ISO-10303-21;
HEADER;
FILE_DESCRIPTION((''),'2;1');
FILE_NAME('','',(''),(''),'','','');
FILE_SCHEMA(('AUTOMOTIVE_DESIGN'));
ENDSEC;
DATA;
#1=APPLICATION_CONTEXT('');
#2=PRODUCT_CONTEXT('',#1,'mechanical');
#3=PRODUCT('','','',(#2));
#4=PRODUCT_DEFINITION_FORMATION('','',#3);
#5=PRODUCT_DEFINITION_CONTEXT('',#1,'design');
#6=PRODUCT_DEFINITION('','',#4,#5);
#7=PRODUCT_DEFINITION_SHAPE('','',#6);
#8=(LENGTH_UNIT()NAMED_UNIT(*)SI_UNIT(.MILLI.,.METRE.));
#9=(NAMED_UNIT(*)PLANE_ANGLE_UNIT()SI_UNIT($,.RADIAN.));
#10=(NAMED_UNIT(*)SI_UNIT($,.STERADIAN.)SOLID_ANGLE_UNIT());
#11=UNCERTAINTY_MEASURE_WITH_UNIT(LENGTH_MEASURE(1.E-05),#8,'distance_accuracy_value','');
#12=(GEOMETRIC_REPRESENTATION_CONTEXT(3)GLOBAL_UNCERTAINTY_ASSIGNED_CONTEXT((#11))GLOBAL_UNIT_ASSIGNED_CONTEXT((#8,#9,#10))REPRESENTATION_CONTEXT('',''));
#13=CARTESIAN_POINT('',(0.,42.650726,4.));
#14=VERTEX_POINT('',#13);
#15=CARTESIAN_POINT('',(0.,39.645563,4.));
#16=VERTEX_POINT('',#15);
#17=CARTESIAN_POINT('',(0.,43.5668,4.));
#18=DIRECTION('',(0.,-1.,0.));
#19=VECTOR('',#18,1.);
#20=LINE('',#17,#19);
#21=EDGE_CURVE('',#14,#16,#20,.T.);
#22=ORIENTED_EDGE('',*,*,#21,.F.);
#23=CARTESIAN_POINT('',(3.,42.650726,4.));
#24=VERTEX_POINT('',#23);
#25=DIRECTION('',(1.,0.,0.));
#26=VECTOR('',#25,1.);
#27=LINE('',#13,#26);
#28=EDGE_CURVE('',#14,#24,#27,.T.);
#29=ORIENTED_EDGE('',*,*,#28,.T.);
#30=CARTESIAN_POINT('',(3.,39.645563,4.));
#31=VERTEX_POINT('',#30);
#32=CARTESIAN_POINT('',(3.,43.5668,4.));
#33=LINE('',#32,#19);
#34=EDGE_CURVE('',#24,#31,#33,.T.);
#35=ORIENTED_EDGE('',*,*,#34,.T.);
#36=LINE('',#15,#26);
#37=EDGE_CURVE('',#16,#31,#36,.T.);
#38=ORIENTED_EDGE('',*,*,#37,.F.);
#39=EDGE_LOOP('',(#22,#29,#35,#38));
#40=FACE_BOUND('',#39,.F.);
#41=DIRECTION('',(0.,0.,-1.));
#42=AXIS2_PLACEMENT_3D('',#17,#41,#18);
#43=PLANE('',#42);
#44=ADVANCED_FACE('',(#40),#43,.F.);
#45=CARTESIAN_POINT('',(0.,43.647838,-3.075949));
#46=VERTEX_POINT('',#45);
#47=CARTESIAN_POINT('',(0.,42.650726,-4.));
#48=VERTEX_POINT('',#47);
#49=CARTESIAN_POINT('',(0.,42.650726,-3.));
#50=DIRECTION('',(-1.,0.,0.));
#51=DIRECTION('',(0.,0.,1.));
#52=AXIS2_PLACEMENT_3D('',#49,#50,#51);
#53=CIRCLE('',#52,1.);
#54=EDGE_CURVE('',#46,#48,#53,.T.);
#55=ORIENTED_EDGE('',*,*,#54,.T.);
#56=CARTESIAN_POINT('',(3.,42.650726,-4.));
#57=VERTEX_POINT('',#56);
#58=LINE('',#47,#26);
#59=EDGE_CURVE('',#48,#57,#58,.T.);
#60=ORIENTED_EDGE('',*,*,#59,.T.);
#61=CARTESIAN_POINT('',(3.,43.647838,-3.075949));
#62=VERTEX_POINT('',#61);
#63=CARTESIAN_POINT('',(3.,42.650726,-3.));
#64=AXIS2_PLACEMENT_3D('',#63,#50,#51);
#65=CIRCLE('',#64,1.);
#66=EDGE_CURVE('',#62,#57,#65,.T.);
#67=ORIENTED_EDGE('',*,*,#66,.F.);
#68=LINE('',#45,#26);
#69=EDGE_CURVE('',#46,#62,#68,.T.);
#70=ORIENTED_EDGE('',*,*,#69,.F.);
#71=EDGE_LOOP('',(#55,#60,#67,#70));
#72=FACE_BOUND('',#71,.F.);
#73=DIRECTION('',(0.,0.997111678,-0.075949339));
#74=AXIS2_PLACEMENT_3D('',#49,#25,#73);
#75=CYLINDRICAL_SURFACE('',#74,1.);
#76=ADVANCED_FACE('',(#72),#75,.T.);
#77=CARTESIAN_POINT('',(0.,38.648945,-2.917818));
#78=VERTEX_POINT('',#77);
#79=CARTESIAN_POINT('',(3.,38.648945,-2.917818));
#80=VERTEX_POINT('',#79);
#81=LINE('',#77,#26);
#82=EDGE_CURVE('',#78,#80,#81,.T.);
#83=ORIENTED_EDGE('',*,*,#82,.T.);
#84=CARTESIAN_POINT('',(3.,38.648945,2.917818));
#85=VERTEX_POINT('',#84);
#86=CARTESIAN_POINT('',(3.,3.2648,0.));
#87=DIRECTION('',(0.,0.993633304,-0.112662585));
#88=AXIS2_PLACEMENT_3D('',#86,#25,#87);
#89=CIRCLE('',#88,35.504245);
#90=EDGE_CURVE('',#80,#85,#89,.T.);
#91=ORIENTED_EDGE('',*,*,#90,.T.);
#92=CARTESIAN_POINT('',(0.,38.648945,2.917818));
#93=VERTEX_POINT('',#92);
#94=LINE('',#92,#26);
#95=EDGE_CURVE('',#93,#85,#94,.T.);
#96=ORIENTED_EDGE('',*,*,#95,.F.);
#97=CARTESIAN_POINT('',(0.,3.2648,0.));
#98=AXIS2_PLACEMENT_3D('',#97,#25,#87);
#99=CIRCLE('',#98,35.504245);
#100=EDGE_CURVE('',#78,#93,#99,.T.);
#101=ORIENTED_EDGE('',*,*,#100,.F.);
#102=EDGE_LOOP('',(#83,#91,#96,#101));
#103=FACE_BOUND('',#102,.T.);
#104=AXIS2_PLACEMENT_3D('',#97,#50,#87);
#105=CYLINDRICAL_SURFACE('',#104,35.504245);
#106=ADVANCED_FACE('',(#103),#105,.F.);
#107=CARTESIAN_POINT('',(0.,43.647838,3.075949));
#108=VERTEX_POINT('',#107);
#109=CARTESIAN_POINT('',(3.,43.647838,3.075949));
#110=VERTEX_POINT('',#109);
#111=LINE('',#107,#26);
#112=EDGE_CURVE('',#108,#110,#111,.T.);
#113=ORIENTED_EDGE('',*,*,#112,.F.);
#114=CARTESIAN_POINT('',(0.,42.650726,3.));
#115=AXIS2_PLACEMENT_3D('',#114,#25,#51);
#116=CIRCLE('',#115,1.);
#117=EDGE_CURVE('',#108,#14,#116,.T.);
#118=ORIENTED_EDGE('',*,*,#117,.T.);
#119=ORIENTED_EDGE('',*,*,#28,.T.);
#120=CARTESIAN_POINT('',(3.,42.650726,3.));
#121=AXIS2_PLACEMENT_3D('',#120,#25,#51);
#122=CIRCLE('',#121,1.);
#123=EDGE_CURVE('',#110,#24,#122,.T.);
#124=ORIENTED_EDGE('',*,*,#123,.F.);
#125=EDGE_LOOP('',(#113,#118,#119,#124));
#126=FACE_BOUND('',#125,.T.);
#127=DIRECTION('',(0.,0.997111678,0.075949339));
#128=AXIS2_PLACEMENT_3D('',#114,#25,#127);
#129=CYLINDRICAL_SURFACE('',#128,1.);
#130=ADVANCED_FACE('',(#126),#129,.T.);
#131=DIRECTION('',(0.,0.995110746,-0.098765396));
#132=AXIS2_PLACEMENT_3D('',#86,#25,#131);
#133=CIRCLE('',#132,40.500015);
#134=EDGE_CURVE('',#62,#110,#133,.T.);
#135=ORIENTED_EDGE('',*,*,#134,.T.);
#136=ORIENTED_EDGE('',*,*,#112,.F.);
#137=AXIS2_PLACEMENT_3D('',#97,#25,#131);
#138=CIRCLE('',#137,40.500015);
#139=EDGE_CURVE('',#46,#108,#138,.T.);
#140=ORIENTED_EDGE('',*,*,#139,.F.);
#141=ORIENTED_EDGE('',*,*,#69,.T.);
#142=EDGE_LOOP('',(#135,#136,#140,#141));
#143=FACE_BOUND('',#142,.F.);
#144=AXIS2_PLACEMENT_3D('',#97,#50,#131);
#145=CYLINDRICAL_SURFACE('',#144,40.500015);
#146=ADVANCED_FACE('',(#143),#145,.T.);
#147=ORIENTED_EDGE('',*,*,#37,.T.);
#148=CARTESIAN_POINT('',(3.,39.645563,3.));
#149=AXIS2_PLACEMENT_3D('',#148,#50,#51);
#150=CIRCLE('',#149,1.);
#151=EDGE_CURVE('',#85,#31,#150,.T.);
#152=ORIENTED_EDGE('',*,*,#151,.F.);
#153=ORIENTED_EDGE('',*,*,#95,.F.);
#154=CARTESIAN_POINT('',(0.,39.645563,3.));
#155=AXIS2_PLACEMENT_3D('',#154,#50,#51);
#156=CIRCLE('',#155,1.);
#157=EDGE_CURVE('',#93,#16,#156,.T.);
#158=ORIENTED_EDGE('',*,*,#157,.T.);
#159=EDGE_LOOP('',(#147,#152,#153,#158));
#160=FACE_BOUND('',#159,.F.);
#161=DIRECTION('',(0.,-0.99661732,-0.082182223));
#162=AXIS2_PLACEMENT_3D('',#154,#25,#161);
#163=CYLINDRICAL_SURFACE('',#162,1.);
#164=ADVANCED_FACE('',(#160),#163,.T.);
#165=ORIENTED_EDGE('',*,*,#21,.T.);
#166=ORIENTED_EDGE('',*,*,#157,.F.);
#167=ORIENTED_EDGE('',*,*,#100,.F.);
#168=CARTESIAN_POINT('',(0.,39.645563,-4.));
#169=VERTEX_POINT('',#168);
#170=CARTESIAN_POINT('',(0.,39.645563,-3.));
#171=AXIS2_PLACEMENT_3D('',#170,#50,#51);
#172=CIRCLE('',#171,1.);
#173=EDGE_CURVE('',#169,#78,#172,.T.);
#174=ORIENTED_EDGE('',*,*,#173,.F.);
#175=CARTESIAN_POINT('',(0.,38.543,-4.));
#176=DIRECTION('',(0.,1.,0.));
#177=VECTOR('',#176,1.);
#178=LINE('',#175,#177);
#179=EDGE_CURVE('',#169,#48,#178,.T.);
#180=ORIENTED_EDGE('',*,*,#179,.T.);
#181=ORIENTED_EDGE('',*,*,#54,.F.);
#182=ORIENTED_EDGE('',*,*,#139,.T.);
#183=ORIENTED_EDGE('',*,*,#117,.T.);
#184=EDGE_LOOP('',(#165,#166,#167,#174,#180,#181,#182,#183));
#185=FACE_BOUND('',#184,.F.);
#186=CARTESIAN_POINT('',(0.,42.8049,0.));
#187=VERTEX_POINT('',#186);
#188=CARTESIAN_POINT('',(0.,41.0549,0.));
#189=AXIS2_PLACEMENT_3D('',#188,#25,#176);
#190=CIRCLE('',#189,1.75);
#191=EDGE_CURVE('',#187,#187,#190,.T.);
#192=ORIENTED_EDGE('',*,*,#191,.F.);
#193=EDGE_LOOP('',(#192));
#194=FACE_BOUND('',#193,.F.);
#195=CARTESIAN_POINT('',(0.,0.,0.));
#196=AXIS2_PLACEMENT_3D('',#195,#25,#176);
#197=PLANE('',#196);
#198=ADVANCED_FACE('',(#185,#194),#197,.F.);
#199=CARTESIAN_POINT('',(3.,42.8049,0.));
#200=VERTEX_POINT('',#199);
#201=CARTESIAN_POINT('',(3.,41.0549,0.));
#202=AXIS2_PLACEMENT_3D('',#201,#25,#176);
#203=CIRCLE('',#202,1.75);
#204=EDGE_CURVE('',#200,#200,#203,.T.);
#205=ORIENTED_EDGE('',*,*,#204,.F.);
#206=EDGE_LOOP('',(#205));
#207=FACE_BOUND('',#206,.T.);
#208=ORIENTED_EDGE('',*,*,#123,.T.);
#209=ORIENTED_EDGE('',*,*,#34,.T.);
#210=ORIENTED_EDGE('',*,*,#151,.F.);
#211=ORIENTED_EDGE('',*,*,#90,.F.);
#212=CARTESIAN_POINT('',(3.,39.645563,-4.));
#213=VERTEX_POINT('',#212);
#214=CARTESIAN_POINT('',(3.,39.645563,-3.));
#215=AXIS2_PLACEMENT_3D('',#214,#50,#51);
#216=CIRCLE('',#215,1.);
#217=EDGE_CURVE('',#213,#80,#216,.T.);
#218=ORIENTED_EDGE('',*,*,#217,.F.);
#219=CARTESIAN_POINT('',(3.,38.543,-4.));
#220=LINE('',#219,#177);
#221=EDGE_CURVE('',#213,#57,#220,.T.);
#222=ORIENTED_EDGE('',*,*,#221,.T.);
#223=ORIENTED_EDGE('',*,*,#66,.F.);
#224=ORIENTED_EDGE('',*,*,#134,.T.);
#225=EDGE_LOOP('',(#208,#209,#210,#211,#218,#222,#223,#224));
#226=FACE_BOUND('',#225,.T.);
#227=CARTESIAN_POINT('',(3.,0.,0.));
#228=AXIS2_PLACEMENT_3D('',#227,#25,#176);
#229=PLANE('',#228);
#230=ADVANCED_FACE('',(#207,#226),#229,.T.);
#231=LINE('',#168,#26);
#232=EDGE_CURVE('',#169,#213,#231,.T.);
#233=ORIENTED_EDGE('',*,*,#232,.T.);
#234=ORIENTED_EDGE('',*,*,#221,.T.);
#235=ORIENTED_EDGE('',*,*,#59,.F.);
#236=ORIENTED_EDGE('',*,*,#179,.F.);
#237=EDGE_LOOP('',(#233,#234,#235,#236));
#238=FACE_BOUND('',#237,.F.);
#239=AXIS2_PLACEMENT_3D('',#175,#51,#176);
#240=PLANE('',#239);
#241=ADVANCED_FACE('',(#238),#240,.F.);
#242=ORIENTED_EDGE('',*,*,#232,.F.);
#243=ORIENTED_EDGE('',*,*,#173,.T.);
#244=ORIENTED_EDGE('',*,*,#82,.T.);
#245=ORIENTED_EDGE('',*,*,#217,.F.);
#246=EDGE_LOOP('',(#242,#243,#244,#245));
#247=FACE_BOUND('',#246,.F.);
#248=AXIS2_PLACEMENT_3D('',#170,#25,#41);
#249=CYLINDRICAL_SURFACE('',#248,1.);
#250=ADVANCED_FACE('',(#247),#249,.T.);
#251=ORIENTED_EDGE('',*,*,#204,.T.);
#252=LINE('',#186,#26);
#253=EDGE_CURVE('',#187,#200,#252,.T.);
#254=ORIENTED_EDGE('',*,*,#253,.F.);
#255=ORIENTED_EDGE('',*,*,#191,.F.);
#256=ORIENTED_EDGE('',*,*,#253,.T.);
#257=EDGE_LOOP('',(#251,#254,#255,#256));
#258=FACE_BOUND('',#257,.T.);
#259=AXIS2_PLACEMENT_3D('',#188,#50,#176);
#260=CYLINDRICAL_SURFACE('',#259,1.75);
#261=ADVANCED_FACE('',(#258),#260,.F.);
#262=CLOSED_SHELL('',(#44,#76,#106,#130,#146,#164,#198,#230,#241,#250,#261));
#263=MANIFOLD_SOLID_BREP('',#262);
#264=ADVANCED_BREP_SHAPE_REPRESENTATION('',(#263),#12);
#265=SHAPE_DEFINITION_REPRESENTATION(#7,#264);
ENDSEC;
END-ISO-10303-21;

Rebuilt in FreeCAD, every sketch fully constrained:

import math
import FreeCAD as App
import Part
import Sketcher
Q = App.Units.Quantity


def edges_at(feature, points):
    """Names of the edges that pass closest to the given points."""
    edges = feature.Shape.Edges
    near = lambda p: min(range(len(edges)), key=lambda i: edges[i].distToShape(Part.Vertex(*p))[0])
    return sorted({f"Edge{near(p) + 1}" for p in points})

doc = App.newDocument("Part")
body = doc.addObject("PartDesign::Body", "Body")

sketch1 = body.newObject("Sketcher::SketchObject", "Sketch")
sketch1.AttachmentSupport = (doc.getObject("YZ_Plane"), [""])
sketch1.MapMode = "FlatFace"
sketch1.addGeometry([
    Part.ArcOfCircle(Part.Circle(App.Vector(3.2648, 0, 0), App.Vector(0, 0, 1), 40.500015), math.radians(-5.668081), math.radians(5.668081)),
    Part.LineSegment(App.Vector(43.5668, 4, 0), App.Vector(38.543, 4, 0)),
    Part.ArcOfCircle(Part.Circle(App.Vector(3.2648, 0, 0), App.Vector(0, 0, 1), 35.504245), math.radians(-6.468825), math.radians(6.468825)),
    Part.LineSegment(App.Vector(38.543, -4, 0), App.Vector(43.5668, -4, 0)),
    Part.Circle(App.Vector(41.0549, 0, 0), App.Vector(0, 0, 1), 1.75),
], False)
sketch1.addConstraint([
    Sketcher.Constraint("Coincident", 0, 2, 1, 1),
    Sketcher.Constraint("Coincident", 1, 2, 2, 2),
    Sketcher.Constraint("Coincident", 2, 1, 3, 1),
    Sketcher.Constraint("Coincident", 3, 2, 0, 1),
    Sketcher.Constraint("Horizontal", 1),
    Sketcher.Constraint("Horizontal", 3),
    Sketcher.Constraint("Coincident", 2, 3, 0, 3),
    Sketcher.Constraint("Symmetric", 1, 2, 2, 1, -1),
    Sketcher.Constraint("PointOnObject", 4, 3, -1),
    Sketcher.Constraint("Diameter", 4, Q("3.5 mm")),
    Sketcher.Constraint("Radius", 0, Q("40.5 mm")),
    Sketcher.Constraint("DistanceY", -1, 1, 0, 2, Q("4 mm")),
    Sketcher.Constraint("Radius", 2, Q("35.5042 mm")),
    Sketcher.Constraint("DistanceX", 0, 3, 4, 3, Q("37.79 mm")),
    Sketcher.Constraint("DistanceX", -1, 1, 4, 3, Q("41.055 mm")),
])
pad1 = body.newObject("PartDesign::Pad", "Pad")
pad1.Profile = sketch1
pad1.Length = 3
doc.recompute()

fillet = body.newObject("PartDesign::Fillet", "Fillet")
fillet.Base = (pad1, edges_at(pad1, [
    (1.5, 43.567, -4),
    (1.5, 43.567, 4),
    (1.5, 38.543, 4),
    (1.5, 38.543, -4),
]))
fillet.Radius = 1

doc.recompute()
